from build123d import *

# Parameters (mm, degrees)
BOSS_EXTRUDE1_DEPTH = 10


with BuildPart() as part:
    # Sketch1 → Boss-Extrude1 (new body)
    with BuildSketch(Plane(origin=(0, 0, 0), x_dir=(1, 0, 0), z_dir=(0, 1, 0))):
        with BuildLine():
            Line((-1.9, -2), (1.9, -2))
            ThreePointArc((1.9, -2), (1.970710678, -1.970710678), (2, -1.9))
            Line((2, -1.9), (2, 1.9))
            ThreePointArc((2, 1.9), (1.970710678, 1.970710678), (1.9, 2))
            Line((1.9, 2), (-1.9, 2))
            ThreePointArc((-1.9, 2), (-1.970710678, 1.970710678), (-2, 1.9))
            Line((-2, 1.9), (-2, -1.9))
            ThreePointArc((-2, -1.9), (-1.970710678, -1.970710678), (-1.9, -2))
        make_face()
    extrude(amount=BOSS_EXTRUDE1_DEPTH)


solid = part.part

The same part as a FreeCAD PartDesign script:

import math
import FreeCAD as App
import Part
import Sketcher
Q = App.Units.Quantity

doc = App.newDocument("Part")
body = doc.addObject("PartDesign::Body", "Body")

sketch1 = body.newObject("Sketcher::SketchObject", "Sketch")
sketch1.AttachmentSupport = (doc.getObject("XZ_Plane"), [""])
sketch1.MapMode = "FlatFace"
sketch1.addGeometry([
    Part.LineSegment(App.Vector(-1.9, 2, 0), App.Vector(1.9, 2, 0)),
    Part.ArcOfCircle(Part.Circle(App.Vector(1.9, 1.9, 0), App.Vector(0, 0, 1), 0.1), math.radians(0), math.radians(90)),
    Part.LineSegment(App.Vector(2, 1.9, 0), App.Vector(2, -1.9, 0)),
    Part.ArcOfCircle(Part.Circle(App.Vector(1.9, -1.9, 0), App.Vector(0, 0, 1), 0.1), math.radians(-90), math.radians(0)),
    Part.LineSegment(App.Vector(1.9, -2, 0), App.Vector(-1.9, -2, 0)),
    Part.ArcOfCircle(Part.Circle(App.Vector(-1.9, -1.9, 0), App.Vector(0, 0, 1), 0.1), math.radians(180), math.radians(270)),
    Part.LineSegment(App.Vector(-2, -1.9, 0), App.Vector(-2, 1.9, 0)),
    Part.ArcOfCircle(Part.Circle(App.Vector(-1.9, 1.9, 0), App.Vector(0, 0, 1), 0.1), math.radians(90), math.radians(180)),
], False)
sketch1.addConstraint([
    Sketcher.Constraint("Tangent", 0, 2, 1, 2),
    Sketcher.Constraint("Tangent", 1, 1, 2, 1),
    Sketcher.Constraint("Tangent", 2, 2, 3, 2),
    Sketcher.Constraint("Tangent", 3, 1, 4, 1),
    Sketcher.Constraint("Tangent", 4, 2, 5, 2),
    Sketcher.Constraint("Tangent", 5, 1, 6, 1),
    Sketcher.Constraint("Tangent", 6, 2, 7, 2),
    Sketcher.Constraint("Tangent", 7, 1, 0, 1),
    Sketcher.Constraint("Horizontal", 0),
    Sketcher.Constraint("Vertical", 2),
    Sketcher.Constraint("Horizontal", 4),
    Sketcher.Constraint("Vertical", 6),
    Sketcher.Constraint("Equal", 1, 3),
    Sketcher.Constraint("Equal", 3, 5),
    Sketcher.Constraint("Equal", 5, 7),
    Sketcher.Constraint("Symmetric", 1, 3, 5, 3, -1, 1),
    Sketcher.Constraint("Equal", 4, 2),
    Sketcher.Constraint("Radius", 1, Q("0.1 mm")),
    Sketcher.Constraint("DistanceX", 0, 1, 0, 2, Q("3.8 mm")),
])
pad1 = body.newObject("PartDesign::Pad", "Pad")
pad1.Profile = sketch1
pad1.Length = 10
pad1.Reversed = True

doc.recompute()
